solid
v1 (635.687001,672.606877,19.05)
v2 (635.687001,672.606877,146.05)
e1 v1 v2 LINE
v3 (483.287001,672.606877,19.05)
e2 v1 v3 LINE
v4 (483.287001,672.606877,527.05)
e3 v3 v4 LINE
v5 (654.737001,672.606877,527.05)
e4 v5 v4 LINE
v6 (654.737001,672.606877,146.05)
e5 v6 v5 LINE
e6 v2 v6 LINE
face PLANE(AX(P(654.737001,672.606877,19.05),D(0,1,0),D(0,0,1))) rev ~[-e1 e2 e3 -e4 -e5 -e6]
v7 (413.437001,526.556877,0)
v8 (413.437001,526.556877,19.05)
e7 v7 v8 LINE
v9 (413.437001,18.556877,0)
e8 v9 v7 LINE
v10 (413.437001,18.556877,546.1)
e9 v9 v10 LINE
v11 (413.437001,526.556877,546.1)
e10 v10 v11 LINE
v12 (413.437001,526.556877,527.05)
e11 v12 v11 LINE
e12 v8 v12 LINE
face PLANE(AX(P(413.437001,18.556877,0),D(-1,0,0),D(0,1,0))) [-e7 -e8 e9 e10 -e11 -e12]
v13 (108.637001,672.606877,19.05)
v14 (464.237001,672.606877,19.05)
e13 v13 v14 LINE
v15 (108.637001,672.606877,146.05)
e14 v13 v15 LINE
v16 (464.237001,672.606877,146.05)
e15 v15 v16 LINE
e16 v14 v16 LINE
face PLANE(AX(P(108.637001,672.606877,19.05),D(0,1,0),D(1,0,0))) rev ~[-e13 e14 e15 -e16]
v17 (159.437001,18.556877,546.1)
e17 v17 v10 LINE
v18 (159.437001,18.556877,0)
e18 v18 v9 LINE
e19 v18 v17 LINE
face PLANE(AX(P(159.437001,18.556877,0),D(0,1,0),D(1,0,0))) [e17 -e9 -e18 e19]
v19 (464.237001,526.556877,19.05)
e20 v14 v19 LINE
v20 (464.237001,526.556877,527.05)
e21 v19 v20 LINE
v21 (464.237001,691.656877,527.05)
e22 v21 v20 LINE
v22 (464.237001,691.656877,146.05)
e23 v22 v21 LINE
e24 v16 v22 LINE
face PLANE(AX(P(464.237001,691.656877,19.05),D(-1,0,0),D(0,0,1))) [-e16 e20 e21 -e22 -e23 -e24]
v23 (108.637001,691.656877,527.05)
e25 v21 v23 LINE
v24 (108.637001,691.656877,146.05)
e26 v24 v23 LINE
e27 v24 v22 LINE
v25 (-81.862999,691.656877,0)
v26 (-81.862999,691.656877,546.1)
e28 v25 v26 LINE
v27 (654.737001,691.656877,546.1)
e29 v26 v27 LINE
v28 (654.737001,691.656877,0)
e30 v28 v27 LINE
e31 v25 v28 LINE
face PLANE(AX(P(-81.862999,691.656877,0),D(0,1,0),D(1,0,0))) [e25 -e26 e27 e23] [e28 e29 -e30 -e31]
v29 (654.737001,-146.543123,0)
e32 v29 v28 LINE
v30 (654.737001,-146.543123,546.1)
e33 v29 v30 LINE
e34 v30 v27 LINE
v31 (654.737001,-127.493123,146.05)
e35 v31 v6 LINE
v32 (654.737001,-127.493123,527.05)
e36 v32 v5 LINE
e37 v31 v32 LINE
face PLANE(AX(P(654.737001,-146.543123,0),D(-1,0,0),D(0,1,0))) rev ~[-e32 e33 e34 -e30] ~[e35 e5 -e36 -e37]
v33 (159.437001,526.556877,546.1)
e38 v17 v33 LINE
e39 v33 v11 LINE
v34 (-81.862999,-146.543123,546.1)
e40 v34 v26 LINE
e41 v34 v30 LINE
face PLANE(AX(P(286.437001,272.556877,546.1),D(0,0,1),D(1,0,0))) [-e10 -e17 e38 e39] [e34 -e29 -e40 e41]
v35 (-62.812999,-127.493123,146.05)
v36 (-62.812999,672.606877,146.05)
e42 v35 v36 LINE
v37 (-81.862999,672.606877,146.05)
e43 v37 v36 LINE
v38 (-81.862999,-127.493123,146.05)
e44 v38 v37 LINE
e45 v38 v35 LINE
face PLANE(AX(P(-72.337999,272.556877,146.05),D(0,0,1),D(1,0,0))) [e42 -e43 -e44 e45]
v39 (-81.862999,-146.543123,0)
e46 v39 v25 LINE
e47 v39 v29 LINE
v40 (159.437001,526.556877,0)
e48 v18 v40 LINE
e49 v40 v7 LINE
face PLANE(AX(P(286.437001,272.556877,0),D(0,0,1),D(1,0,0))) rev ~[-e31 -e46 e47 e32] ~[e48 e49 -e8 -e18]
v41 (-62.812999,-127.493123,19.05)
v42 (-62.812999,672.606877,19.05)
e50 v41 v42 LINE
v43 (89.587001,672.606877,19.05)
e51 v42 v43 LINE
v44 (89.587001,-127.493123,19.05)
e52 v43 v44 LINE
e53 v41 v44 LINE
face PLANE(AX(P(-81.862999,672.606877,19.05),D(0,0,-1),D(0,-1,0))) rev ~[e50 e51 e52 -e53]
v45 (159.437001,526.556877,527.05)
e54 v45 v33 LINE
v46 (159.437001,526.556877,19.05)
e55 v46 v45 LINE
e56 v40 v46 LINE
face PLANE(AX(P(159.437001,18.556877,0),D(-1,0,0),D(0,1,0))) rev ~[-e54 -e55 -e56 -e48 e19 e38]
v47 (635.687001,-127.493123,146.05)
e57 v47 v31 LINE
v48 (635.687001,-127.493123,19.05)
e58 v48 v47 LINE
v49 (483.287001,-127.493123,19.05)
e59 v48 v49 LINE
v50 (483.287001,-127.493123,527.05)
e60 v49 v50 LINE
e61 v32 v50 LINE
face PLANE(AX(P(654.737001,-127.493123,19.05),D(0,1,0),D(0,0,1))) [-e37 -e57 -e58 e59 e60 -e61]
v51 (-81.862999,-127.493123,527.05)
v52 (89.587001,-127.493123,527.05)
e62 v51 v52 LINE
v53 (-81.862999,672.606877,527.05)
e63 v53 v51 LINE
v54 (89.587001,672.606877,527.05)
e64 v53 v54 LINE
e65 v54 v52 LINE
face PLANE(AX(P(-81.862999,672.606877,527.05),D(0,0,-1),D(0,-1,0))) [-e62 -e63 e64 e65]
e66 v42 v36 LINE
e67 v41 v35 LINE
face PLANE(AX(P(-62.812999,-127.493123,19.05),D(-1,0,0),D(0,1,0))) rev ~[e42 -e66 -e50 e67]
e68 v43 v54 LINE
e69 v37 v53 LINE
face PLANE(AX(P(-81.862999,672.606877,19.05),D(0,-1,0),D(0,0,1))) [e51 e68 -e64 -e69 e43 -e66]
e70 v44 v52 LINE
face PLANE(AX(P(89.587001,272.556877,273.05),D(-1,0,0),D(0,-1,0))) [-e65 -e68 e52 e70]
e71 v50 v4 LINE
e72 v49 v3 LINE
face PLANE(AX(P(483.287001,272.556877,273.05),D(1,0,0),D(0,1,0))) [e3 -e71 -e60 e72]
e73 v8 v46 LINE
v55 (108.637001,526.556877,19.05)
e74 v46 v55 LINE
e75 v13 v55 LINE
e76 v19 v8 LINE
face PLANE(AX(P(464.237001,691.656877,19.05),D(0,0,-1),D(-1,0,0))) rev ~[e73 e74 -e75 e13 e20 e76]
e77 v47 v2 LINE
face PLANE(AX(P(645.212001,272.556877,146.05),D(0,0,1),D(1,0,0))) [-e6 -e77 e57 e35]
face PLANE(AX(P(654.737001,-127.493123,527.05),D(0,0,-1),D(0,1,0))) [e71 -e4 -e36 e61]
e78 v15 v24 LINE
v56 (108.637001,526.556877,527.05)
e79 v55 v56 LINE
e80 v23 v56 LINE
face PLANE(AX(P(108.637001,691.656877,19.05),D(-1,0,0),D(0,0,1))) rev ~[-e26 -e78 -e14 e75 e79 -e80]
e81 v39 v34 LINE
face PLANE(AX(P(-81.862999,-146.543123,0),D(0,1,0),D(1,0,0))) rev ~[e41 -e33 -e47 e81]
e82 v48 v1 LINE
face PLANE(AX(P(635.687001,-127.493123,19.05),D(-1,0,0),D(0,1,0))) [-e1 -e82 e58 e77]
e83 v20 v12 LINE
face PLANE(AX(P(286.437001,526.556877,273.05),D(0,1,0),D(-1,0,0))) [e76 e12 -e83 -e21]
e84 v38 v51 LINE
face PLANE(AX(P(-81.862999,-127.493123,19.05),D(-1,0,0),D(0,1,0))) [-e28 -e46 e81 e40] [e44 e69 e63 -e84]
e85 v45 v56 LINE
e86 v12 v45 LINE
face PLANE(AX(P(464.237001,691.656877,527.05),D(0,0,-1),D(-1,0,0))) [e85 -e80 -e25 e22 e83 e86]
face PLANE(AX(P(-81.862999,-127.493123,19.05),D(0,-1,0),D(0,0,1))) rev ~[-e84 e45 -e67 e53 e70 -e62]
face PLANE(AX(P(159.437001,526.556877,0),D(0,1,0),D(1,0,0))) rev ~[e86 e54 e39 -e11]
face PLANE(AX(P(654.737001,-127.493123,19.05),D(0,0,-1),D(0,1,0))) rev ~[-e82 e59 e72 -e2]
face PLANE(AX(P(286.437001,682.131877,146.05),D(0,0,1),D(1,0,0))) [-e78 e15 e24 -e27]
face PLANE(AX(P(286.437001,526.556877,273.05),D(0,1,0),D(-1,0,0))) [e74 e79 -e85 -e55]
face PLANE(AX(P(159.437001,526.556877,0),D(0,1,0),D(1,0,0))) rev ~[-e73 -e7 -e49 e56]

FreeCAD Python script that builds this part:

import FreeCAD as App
import Part
import Sketcher

V = App.Vector
Q = App.Units.Quantity

doc = App.newDocument("Part")
params = doc.addObject("Spreadsheet::Sheet", "Params")
for row, (alias, value) in enumerate([
    ("sketch1_width", "29 in"),
    ("sketch1_width2", "10 in"),
    ("sketch1_height", "33 in"),
    ("sketch1_height2", "20 in"),
    ("pad1_length", "21.5 in"),
    ("sketch2_height", "20 in"),
    ("sketch2_width", "31.5 in"),
    ("pocket1_length", "6.75 in"),
    ("sketch3_height", "20 in"),
    ("sketch3_width", "31.5 in"),
    ("pocket2_length", "6.75 in"),
    ("sketch4_height", "31.5 in"),
    ("sketch4_width", "0.75 in"),
    ("pad2_length", "5 in"),
    ("sketch5_height", "31.5 in"),
    ("sketch5_width", "0.75 in"),
    ("pad3_length", "5 in"),
    ("sketch6_width", "14 in"),
    ("sketch6_height", "20 in"),
    ("pocket3_length", "6.5 in"),
    ("sketch7_width", "14 in"),
    ("sketch7_height", "0.75 in"),
    ("pad4_length", "5 in"),
], start=1):
    params.set(f"A{row}", alias)
    params.set(f"B{row}", "=" + value)
    params.setAlias(f"B{row}", alias)

body = doc.addObject("PartDesign::Body", "Body")

sketch1 = doc.addObject("Sketcher::SketchObject", "Sketch")
body.addObject(sketch1)
sketch1.AttachmentSupport = (doc.XY_Plane, [""])
sketch1.MapMode = "FlatFace"
sketch1.addGeometry(Part.LineSegment(V(-82, 692, 0), V(-82, -147, 0)), False)
sketch1.addGeometry(Part.LineSegment(V(-82, -147, 0), V(655, -147, 0)), False)
sketch1.addGeometry(Part.LineSegment(V(655, -147, 0), V(655, 692, 0)), False)
sketch1.addGeometry(Part.LineSegment(V(655, 692, 0), V(-82, 692, 0)), False)
sketch1.addGeometry(Part.LineSegment(V(413, 19, 0), V(159, 19, 0)), False)
sketch1.addGeometry(Part.LineSegment(V(159, 19, 0), V(159, 527, 0)), False)
sketch1.addGeometry(Part.LineSegment(V(159, 527, 0), V(413, 527, 0)), False)
sketch1.addGeometry(Part.LineSegment(V(413, 527, 0), V(413, 19, 0)), False)
sketch1.addConstraint(Sketcher.Constraint("Coincident", 0, 2, 1, 1))
sketch1.addConstraint(Sketcher.Constraint("Coincident", 1, 2, 2, 1))
sketch1.addConstraint(Sketcher.Constraint("Coincident", 2, 2, 3, 1))
sketch1.addConstraint(Sketcher.Constraint("Coincident", 3, 2, 0, 1))
sketch1.addConstraint(Sketcher.Constraint("Coincident", 4, 2, 5, 1))
sketch1.addConstraint(Sketcher.Constraint("Coincident", 5, 2, 6, 1))
sketch1.addConstraint(Sketcher.Constraint("Coincident", 6, 2, 7, 1))
sketch1.addConstraint(Sketcher.Constraint("Coincident", 7, 2, 4, 1))
sketch1.addConstraint(Sketcher.Constraint("Vertical", 0))
sketch1.addConstraint(Sketcher.Constraint("Horizontal", 1))
sketch1.addConstraint(Sketcher.Constraint("Vertical", 2))
sketch1.addConstraint(Sketcher.Constraint("Horizontal", 3))
sketch1.addConstraint(Sketcher.Constraint("Horizontal", 4))
sketch1.addConstraint(Sketcher.Constraint("Vertical", 5))
sketch1.addConstraint(Sketcher.Constraint("Horizontal", 6))
sketch1.addConstraint(Sketcher.Constraint("Vertical", 7))
sketch1.addConstraint(Sketcher.Constraint("DistanceX", 1, 1, 1, 2, Q("29 in")))
sketch1.addConstraint(Sketcher.Constraint("DistanceX", 4, 2, 4, 1, Q("10 in")))
sketch1.addConstraint(Sketcher.Constraint("DistanceY", 0, 2, 0, 1, Q("33 in")))
sketch1.addConstraint(Sketcher.Constraint("DistanceY", 5, 1, 5, 2, Q("20 in")))
sketch1.addConstraint(Sketcher.Constraint("DistanceX", 0, 2, 4, 2, Q("9.5 in")))
sketch1.addConstraint(Sketcher.Constraint("DistanceY", 0, 2, 4, 2, Q("6.5 in")))
sketch1.addConstraint(Sketcher.Constraint("DistanceX", 0, 2, -1, 1, 81.862999))
sketch1.addConstraint(Sketcher.Constraint("DistanceY", 0, 2, -1, 1, 146.543123))
sketch1.setExpression("Constraints[16]", "Params.sketch1_width")
sketch1.setExpression("Constraints[17]", "Params.sketch1_width2")
sketch1.setExpression("Constraints[18]", "Params.sketch1_height")
sketch1.setExpression("Constraints[19]", "Params.sketch1_height2")
pad1 = doc.addObject("PartDesign::Pad", "Pad")
body.addObject(pad1)
pad1.Profile = sketch1
pad1.setExpression("Length", "Params.pad1_length")

sketch2 = doc.addObject("Sketcher::SketchObject", "Sketch001")
body.addObject(sketch2)
sketch2.AttachmentSupport = (doc.YZ_Plane, [""])
sketch2.MapMode = "FlatFace"
sketch2.AttachmentOffset = App.Placement(V(0, 0, 654.737001), App.Rotation())
sketch2.addGeometry(Part.LineSegment(V(-127, 527, 0), V(-127, 19, 0)), False)
sketch2.addGeometry(Part.LineSegment(V(-127, 19, 0), V(673, 19, 0)), False)
sketch2.addGeometry(Part.LineSegment(V(673, 19, 0), V(673, 527, 0)), False)
sketch2.addGeometry(Part.LineSegment(V(673, 527, 0), V(-127, 527, 0)), False)
sketch2.addConstraint(Sketcher.Constraint("Coincident", 0, 2, 1, 1))
sketch2.addConstraint(Sketcher.Constraint("Coincident", 1, 2, 2, 1))
sketch2.addConstraint(Sketcher.Constraint("Coincident", 2, 2, 3, 1))
sketch2.addConstraint(Sketcher.Constraint("Coincident", 3, 2, 0, 1))
sketch2.addConstraint(Sketcher.Constraint("Vertical", 0))
sketch2.addConstraint(Sketcher.Constraint("Horizontal", 1))
sketch2.addConstraint(Sketcher.Constraint("Vertical", 2))
sketch2.addConstraint(Sketcher.Constraint("Horizontal", 3))
sketch2.addConstraint(Sketcher.Constraint("DistanceY", 0, 2, 0, 1, Q("20 in")))
sketch2.addConstraint(Sketcher.Constraint("DistanceX", 1, 1, 1, 2, Q("31.5 in")))
sketch2.addConstraint(Sketcher.Constraint("DistanceY", -1, 1, 0, 2, Q("0.75 in")))
sketch2.addConstraint(Sketcher.Constraint("DistanceX", 0, 2, -1, 1, 127.493123))
sketch2.setExpression("Constraints[8]", "Params.sketch2_height")
sketch2.setExpression("Constraints[9]", "Params.sketch2_width")
pocket1 = doc.addObject("PartDesign::Pocket", "Pocket")
body.addObject(pocket1)
pocket1.Profile = sketch2
pocket1.setExpression("Length", "Params.pocket1_length")

sketch3 = doc.addObject("Sketcher::SketchObject", "Sketch002")
body.addObject(sketch3)
sketch3.AttachmentSupport = (doc.YZ_Plane, [""])
sketch3.MapMode = "FlatFace"
sketch3.AttachmentOffset = App.Placement(V(0, 0, -81.862999), App.Rotation())
sketch3.addGeometry(Part.LineSegment(V(673, 527, 0), V(673, 19, 0)), False)
sketch3.addGeometry(Part.LineSegment(V(673, 19, 0), V(-127, 19, 0)), False)
sketch3.addGeometry(Part.LineSegment(V(-127, 19, 0), V(-127, 527, 0)), False)
sketch3.addGeometry(Part.LineSegment(V(-127, 527, 0), V(673, 527, 0)), False)
sketch3.addConstraint(Sketcher.Constraint("Coincident", 0, 2, 1, 1))
sketch3.addConstraint(Sketcher.Constraint("Coincident", 1, 2, 2, 1))
sketch3.addConstraint(Sketcher.Constraint("Coincident", 2, 2, 3, 1))
sketch3.addConstraint(Sketcher.Constraint("Coincident", 3, 2, 0, 1))
sketch3.addConstraint(Sketcher.Constraint("Vertical", 0))
sketch3.addConstraint(Sketcher.Constraint("Horizontal", 1))
sketch3.addConstraint(Sketcher.Constraint("Vertical", 2))
sketch3.addConstraint(Sketcher.Constraint("Horizontal", 3))
sketch3.addConstraint(Sketcher.Constraint("DistanceY", 0, 2, 0, 1, Q("20 in")))
sketch3.addConstraint(Sketcher.Constraint("DistanceX", 1, 2, 1, 1, Q("31.5 in")))
sketch3.addConstraint(Sketcher.Constraint("DistanceY", -1, 1, 0, 2, Q("0.75 in")))
sketch3.addConstraint(Sketcher.Constraint("DistanceX", -1, 1, 0, 2, 672.606877))
sketch3.setExpression("Constraints[8]", "Params.sketch3_height")
sketch3.setExpression("Constraints[9]", "Params.sketch3_width")
pocket2 = doc.addObject("PartDesign::Pocket", "Pocket001")
body.addObject(pocket2)
pocket2.Profile = sketch3
pocket2.setExpression("Length", "Params.pocket2_length")
pocket2.Reversed = True

sketch4 = doc.addObject("Sketcher::SketchObject", "Sketch003")
body.addObject(sketch4)
sketch4.AttachmentSupport = (doc.XY_Plane, [""])
sketch4.MapMode = "FlatFace"
sketch4.AttachmentOffset = App.Placement(V(0, 0, 0.75 * 25.4), App.Rotation())
sketch4.addGeometry(Part.LineSegment(V(636, 673, 0), V(636, -127, 0)), False)
sketch4.addGeometry(Part.LineSegment(V(636, -127, 0), V(655, -127, 0)), False)
sketch4.addGeometry(Part.LineSegment(V(655, -127, 0), V(655, 673, 0)), False)
sketch4.addGeometry(Part.LineSegment(V(655, 673, 0), V(636, 673, 0)), False)
sketch4.addConstraint(Sketcher.Constraint("Coincident", 0, 2, 1, 1))
sketch4.addConstraint(Sketcher.Constraint("Coincident", 1, 2, 2, 1))
sketch4.addConstraint(Sketcher.Constraint("Coincident", 2, 2, 3, 1))
sketch4.addConstraint(Sketcher.Constraint("Coincident", 3, 2, 0, 1))
sketch4.addConstraint(Sketcher.Constraint("Vertical", 0))
sketch4.addConstraint(Sketcher.Constraint("Horizontal", 1))
sketch4.addConstraint(Sketcher.Constraint("Vertical", 2))
sketch4.addConstraint(Sketcher.Constraint("Horizontal", 3))
sketch4.addConstraint(Sketcher.Constraint("DistanceY", 0, 2, 0, 1, Q("31.5 in")))
sketch4.addConstraint(Sketcher.Constraint("DistanceX", 1, 1, 1, 2, Q("0.75 in")))
sketch4.addConstraint(Sketcher.Constraint("DistanceX", -1, 1, 0, 2, 635.687001))
sketch4.addConstraint(Sketcher.Constraint("DistanceY", 0, 2, -1, 1, 127.493123))
sketch4.setExpression("Constraints[8]", "Params.sketch4_height")
sketch4.setExpression("Constraints[9]", "Params.sketch4_width")
pad2 = doc.addObject("PartDesign::Pad", "Pad001")
body.addObject(pad2)
pad2.Profile = sketch4
pad2.setExpression("Length", "Params.pad2_length")

sketch5 = doc.addObject("Sketcher::SketchObject", "Sketch004")
body.addObject(sketch5)
sketch5.AttachmentSupport = (doc.XY_Plane, [""])
sketch5.MapMode = "FlatFace"
sketch5.AttachmentOffset = App.Placement(V(0, 0, 0.75 * 25.4), App.Rotation())
sketch5.addGeometry(Part.LineSegment(V(-82, 673, 0), V(-82, -127, 0)), False)
sketch5.addGeometry(Part.LineSegment(V(-82, -127, 0), V(-63, -127, 0)), False)
sketch5.addGeometry(Part.LineSegment(V(-63, -127, 0), V(-63, 673, 0)), False)
sketch5.addGeometry(Part.LineSegment(V(-63, 673, 0), V(-82, 673, 0)), False)
sketch5.addConstraint(Sketcher.Constraint("Coincident", 0, 2, 1, 1))
sketch5.addConstraint(Sketcher.Constraint("Coincident", 1, 2, 2, 1))
sketch5.addConstraint(Sketcher.Constraint("Coincident", 2, 2, 3, 1))
sketch5.addConstraint(Sketcher.Constraint("Coincident", 3, 2, 0, 1))
sketch5.addConstraint(Sketcher.Constraint("Vertical", 0))
sketch5.addConstraint(Sketcher.Constraint("Horizontal", 1))
sketch5.addConstraint(Sketcher.Constraint("Vertical", 2))
sketch5.addConstraint(Sketcher.Constraint("Horizontal", 3))
sketch5.addConstraint(Sketcher.Constraint("DistanceY", 0, 2, 0, 1, Q("31.5 in")))
sketch5.addConstraint(Sketcher.Constraint("DistanceX", 1, 1, 1, 2, Q("0.75 in")))
sketch5.addConstraint(Sketcher.Constraint("DistanceX", 0, 2, -1, 1, 81.862999))
sketch5.addConstraint(Sketcher.Constraint("DistanceY", 0, 2, -1, 1, 127.493123))
sketch5.setExpression("Constraints[8]", "Params.sketch5_height")
sketch5.setExpression("Constraints[9]", "Params.sketch5_width")
pad3 = doc.addObject("PartDesign::Pad", "Pad002")
body.addObject(pad3)
pad3.Profile = sketch5
pad3.setExpression("Length", "Params.pad3_length")

sketch6 = doc.addObject("Sketcher::SketchObject", "Sketch005")
body.addObject(sketch6)
sketch6.AttachmentSupport = (doc.XZ_Plane, [""])
sketch6.MapMode = "FlatFace"
sketch6.AttachmentOffset = App.Placement(V(0, 0, -691.656877), App.Rotation())
sketch6.addGeometry(Part.LineSegment(V(464, 527, 0), V(464, 19, 0)), False)
sketch6.addGeometry(Part.LineSegment(V(464, 19, 0), V(109, 19, 0)), False)
sketch6.addGeometry(Part.LineSegment(V(109, 19, 0), V(109, 527, 0)), False)
sketch6.addGeometry(Part.LineSegment(V(109, 527, 0), V(464, 527, 0)), False)
sketch6.addConstraint(Sketcher.Constraint("Coincident", 0, 2, 1, 1))
sketch6.addConstraint(Sketcher.Constraint("Coincident", 1, 2, 2, 1))
sketch6.addConstraint(Sketcher.Constraint("Coincident", 2, 2, 3, 1))
sketch6.addConstraint(Sketcher.Constraint("Coincident", 3, 2, 0, 1))
sketch6.addConstraint(Sketcher.Constraint("Vertical", 0))
sketch6.addConstraint(Sketcher.Constraint("Horizontal", 1))
sketch6.addConstraint(Sketcher.Constraint("Vertical", 2))
sketch6.addConstraint(Sketcher.Constraint("Horizontal", 3))
sketch6.addConstraint(Sketcher.Constraint("DistanceX", 1, 2, 1, 1, Q("14 in")))
sketch6.addConstraint(Sketcher.Constraint("DistanceY", 0, 2, 0, 1, Q("20 in")))
sketch6.addConstraint(Sketcher.Constraint("DistanceY", -1, 1, 0, 2, Q("0.75 in")))
sketch6.addConstraint(Sketcher.Constraint("DistanceX", -1, 1, 0, 2, 464.237001))
sketch6.setExpression("Constraints[8]", "Params.sketch6_width")
sketch6.setExpression("Constraints[9]", "Params.sketch6_height")
pocket3 = doc.addObject("PartDesign::Pocket", "Pocket002")
body.addObject(pocket3)
pocket3.Profile = sketch6
pocket3.setExpression("Length", "Params.pocket3_length")
pocket3.Reversed = True

sketch7 = doc.addObject("Sketcher::SketchObject", "Sketch006")
body.addObject(sketch7)
sketch7.AttachmentSupport = (doc.XY_Plane, [""])
sketch7.MapMode = "FlatFace"
sketch7.AttachmentOffset = App.Placement(V(0, 0, 0.75 * 25.4), App.Rotation())
sketch7.addGeometry(Part.LineSegment(V(109, 692, 0), V(109, 673, 0)), False)
sketch7.addGeometry(Part.LineSegment(V(109, 673, 0), V(464, 673, 0)), False)
sketch7.addGeometry(Part.LineSegment(V(464, 673, 0), V(464, 692, 0)), False)
sketch7.addGeometry(Part.LineSegment(V(464, 692, 0), V(109, 692, 0)), False)
sketch7.addConstraint(Sketcher.Constraint("Coincident", 0, 2, 1, 1))
sketch7.addConstraint(Sketcher.Constraint("Coincident", 1, 2, 2, 1))
sketch7.addConstraint(Sketcher.Constraint("Coincident", 2, 2, 3, 1))
sketch7.addConstraint(Sketcher.Constraint("Coincident", 3, 2, 0, 1))
sketch7.addConstraint(Sketcher.Constraint("Vertical", 0))
sketch7.addConstraint(Sketcher.Constraint("Horizontal", 1))
sketch7.addConstraint(Sketcher.Constraint("Vertical", 2))
sketch7.addConstraint(Sketcher.Constraint("Horizontal", 3))
sketch7.addConstraint(Sketcher.Constraint("DistanceX", 1, 1, 1, 2, Q("14 in")))
sketch7.addConstraint(Sketcher.Constraint("DistanceY", 0, 2, 0, 1, Q("0.75 in")))
sketch7.addConstraint(Sketcher.Constraint("DistanceX", -1, 1, 0, 2, 108.637001))
sketch7.addConstraint(Sketcher.Constraint("DistanceY", -1, 1, 0, 2, 672.606877))
sketch7.setExpression("Constraints[8]", "Params.sketch7_width")
sketch7.setExpression("Constraints[9]", "Params.sketch7_height")
pad4 = doc.addObject("PartDesign::Pad", "Pad003")
body.addObject(pad4)
pad4.Profile = sketch7
pad4.setExpression("Length", "Params.pad4_length")

doc.recompute()
